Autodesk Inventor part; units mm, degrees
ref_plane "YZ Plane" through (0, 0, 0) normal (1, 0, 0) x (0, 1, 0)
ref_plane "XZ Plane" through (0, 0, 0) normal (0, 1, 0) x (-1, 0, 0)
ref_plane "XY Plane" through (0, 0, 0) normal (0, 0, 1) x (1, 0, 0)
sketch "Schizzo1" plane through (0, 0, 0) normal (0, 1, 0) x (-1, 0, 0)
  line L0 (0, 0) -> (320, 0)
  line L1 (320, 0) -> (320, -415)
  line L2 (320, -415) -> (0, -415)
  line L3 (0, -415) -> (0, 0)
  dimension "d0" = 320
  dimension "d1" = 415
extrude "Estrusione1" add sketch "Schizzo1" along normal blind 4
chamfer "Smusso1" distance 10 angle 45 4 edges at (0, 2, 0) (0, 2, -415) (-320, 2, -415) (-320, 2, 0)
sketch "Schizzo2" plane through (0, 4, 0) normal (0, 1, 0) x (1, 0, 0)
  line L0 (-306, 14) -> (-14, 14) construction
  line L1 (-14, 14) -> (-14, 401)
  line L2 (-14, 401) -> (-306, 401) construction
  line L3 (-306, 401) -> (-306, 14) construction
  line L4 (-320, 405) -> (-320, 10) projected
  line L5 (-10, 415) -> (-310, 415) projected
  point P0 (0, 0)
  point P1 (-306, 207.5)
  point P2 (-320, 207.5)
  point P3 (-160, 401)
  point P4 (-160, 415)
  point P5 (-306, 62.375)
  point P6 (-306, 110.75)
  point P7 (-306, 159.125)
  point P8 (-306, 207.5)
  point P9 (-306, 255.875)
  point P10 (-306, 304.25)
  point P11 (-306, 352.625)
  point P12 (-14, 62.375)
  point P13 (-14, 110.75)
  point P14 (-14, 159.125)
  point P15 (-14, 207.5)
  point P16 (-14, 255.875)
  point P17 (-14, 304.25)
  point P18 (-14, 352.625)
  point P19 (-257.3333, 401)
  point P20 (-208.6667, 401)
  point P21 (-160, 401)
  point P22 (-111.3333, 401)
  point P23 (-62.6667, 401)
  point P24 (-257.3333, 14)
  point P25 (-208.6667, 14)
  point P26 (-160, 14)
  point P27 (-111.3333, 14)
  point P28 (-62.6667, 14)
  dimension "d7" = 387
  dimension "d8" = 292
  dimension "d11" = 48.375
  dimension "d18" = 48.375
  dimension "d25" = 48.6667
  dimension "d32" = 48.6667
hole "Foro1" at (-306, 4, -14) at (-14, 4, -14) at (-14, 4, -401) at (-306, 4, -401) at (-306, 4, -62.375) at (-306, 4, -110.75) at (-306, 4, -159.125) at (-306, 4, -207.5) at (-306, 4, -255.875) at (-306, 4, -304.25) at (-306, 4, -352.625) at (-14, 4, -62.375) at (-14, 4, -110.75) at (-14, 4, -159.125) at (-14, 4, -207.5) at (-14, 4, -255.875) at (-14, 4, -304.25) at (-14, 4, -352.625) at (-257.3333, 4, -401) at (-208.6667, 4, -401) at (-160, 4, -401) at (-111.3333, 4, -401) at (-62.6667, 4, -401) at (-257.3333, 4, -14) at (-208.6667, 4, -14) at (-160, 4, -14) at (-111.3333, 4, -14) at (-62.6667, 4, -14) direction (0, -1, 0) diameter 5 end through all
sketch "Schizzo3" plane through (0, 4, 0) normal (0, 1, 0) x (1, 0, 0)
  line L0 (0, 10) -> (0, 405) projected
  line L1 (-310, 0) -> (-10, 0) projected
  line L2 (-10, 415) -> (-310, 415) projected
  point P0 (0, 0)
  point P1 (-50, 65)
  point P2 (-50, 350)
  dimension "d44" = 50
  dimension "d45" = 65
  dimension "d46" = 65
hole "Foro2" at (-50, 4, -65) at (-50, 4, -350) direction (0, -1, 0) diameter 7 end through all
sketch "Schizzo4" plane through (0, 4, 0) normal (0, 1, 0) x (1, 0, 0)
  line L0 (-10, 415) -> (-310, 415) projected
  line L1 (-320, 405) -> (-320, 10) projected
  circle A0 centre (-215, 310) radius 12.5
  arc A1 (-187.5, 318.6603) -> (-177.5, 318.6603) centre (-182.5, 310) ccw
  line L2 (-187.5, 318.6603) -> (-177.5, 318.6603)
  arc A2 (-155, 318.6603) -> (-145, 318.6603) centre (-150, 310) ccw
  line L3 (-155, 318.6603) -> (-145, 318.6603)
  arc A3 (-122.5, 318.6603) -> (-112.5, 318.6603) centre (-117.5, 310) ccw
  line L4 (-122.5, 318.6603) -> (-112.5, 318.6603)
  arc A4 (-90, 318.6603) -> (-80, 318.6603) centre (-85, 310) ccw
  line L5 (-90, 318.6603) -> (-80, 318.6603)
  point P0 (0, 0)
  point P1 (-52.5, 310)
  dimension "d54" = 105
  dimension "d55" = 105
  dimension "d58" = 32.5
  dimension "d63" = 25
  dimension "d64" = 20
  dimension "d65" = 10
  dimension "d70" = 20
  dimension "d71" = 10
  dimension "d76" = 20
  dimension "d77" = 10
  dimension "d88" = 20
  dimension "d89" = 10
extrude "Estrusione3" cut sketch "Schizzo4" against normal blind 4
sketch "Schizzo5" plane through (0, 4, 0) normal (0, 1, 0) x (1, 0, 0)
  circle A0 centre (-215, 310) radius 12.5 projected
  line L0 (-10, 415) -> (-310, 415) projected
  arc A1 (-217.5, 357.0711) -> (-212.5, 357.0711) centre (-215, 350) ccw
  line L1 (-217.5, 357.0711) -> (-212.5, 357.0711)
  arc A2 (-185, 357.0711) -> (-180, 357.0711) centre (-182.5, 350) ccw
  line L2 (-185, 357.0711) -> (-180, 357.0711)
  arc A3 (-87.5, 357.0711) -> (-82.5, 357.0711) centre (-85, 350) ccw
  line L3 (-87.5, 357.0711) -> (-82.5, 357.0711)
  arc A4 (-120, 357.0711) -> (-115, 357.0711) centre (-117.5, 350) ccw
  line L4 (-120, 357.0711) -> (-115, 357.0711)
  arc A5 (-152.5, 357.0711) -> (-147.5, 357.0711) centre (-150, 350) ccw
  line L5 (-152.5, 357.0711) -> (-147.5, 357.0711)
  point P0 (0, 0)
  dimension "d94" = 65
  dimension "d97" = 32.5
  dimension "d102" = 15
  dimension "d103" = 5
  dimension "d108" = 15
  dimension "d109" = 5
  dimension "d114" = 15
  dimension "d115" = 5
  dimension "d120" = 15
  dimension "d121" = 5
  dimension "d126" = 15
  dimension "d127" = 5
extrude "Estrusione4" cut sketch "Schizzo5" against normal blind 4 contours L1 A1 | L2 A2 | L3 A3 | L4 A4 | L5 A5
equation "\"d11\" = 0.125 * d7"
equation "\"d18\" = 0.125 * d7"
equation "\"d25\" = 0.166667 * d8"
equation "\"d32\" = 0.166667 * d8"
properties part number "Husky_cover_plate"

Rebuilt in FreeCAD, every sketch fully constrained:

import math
import FreeCAD as App
import Part
import Sketcher
from FreeCAD import Vector


def edges_at(feature, points):
    """Names of the edges that pass closest to the given points."""
    edges = feature.Shape.Edges
    near = lambda p: min(range(len(edges)), key=lambda i: edges[i].distToShape(Part.Vertex(*p))[0])
    return sorted({f"Edge{near(p) + 1}" for p in points})

doc = App.newDocument("Part")
params = doc.addObject("Spreadsheet::Sheet", "Params")
for row, (alias, value) in enumerate([
    ("sketch1_width", "320 mm"),
    ("sketch1_height", "415 mm"),
    ("pad1_length", "4 mm"),
    ("chamfer_size", "10 mm"),
    ("sketch2_diameter", "5 mm"),
    ("hole_diameter", "5 mm"),
    ("sketch3_diameter", "7 mm"),
    ("hole2_diameter", "7 mm"),
    ("sketch4_diameter", "25 mm"),
    ("sketch4_radius", "10 mm"),
    ("sketch4_width", "10 mm"),
    ("pocket1_length", "4 mm"),
    ("sketch5_radius", "7.5 mm"),
    ("sketch5_width", "5 mm"),
    ("pocket2_length", "4 mm"),
], start=1):
    params.set(f"A{row}", alias)
    params.set(f"B{row}", "=" + value)
    params.setAlias(f"B{row}", alias)

body = doc.addObject("PartDesign::Body", "Body")

sketch1 = body.newObject("Sketcher::SketchObject", "Sketch")
sketch1.AttachmentSupport = (doc.getObject("XZ_Plane"), [""])
sketch1.MapMode = "FlatFace"
sketch1.addGeometry(Part.LineSegment(Vector(-320, 0, 0), Vector(0, 0, 0)), False)
sketch1.addGeometry(Part.LineSegment(Vector(0, 0, 0), Vector(0, -415, 0)), False)
sketch1.addGeometry(Part.LineSegment(Vector(0, -415, 0), Vector(-320, -415, 0)), False)
sketch1.addGeometry(Part.LineSegment(Vector(-320, -415, 0), Vector(-320, 0, 0)), False)
sketch1.addConstraint(Sketcher.Constraint("Coincident", 0, 2, 1, 1))
sketch1.addConstraint(Sketcher.Constraint("Coincident", 1, 2, 2, 1))
sketch1.addConstraint(Sketcher.Constraint("Coincident", 2, 2, 3, 1))
sketch1.addConstraint(Sketcher.Constraint("Coincident", 3, 2, 0, 1))
sketch1.addConstraint(Sketcher.Constraint("Horizontal", 0))
sketch1.addConstraint(Sketcher.Constraint("Vertical", 1))
sketch1.addConstraint(Sketcher.Constraint("Horizontal", 2))
sketch1.addConstraint(Sketcher.Constraint("Vertical", 3))
sketch1.addConstraint(Sketcher.Constraint("Coincident", 0, 2, -1, 1))
sketch1.addConstraint(Sketcher.Constraint("DistanceX", 0, 1, 0, 2, 320.0))
sketch1.addConstraint(Sketcher.Constraint("DistanceY", 1, 2, 1, 1, 415.0))
sketch1.setExpression("Constraints[9]", "Params.sketch1_width")
sketch1.setExpression("Constraints[10]", "Params.sketch1_height")
pad1 = body.newObject("PartDesign::Pad", "Pad")
pad1.Profile = sketch1
pad1.setExpression("Length", "Params.pad1_length")
pad1.Reversed = True
doc.recompute()

chamfer = body.newObject("PartDesign::Chamfer", "Chamfer")
chamfer.Base = (pad1, edges_at(pad1, [
    (0, 2, 0),
    (0, 2, -415),
    (-320, 2, -415),
    (-320, 2, 0),
]))
chamfer.setExpression("Size", "Params.chamfer_size")

sketch2 = body.newObject("Sketcher::SketchObject", "Sketch001")
sketch2.AttachmentSupport = (doc.getObject("XZ_Plane"), [""])
sketch2.MapMode = "FlatFace"
sketch2.AttachmentOffset = App.Placement(Vector(0, 0, -4), App.Rotation())
sketch2.addGeometry(Part.Circle(Vector(-306, -14, 0), Vector(0, 0, 1), 2.5), False)
sketch2.addGeometry(Part.Circle(Vector(-14, -14, 0), Vector(0, 0, 1), 2.5), False)
sketch2.addGeometry(Part.Circle(Vector(-14, -401, 0), Vector(0, 0, 1), 2.5), False)
sketch2.addGeometry(Part.Circle(Vector(-306, -401, 0), Vector(0, 0, 1), 2.5), False)
sketch2.addGeometry(Part.Circle(Vector(-306, -62.4, 0), Vector(0, 0, 1), 2.5), False)
sketch2.addGeometry(Part.Circle(Vector(-306, -110.8, 0), Vector(0, 0, 1), 2.5), False)
sketch2.addGeometry(Part.Circle(Vector(-306, -159.1, 0), Vector(0, 0, 1), 2.5), False)
sketch2.addGeometry(Part.Circle(Vector(-306, -207.5, 0), Vector(0, 0, 1), 2.5), False)
sketch2.addGeometry(Part.Circle(Vector(-306, -255.9, 0), Vector(0, 0, 1), 2.5), False)
sketch2.addGeometry(Part.Circle(Vector(-306, -304.2, 0), Vector(0, 0, 1), 2.5), False)
sketch2.addGeometry(Part.Circle(Vector(-306, -352.6, 0), Vector(0, 0, 1), 2.5), False)
sketch2.addGeometry(Part.Circle(Vector(-14, -62.4, 0), Vector(0, 0, 1), 2.5), False)
sketch2.addGeometry(Part.Circle(Vector(-14, -110.8, 0), Vector(0, 0, 1), 2.5), False)
sketch2.addGeometry(Part.Circle(Vector(-14, -159.1, 0), Vector(0, 0, 1), 2.5), False)
sketch2.addGeometry(Part.Circle(Vector(-14, -207.5, 0), Vector(0, 0, 1), 2.5), False)
sketch2.addGeometry(Part.Circle(Vector(-14, -255.9, 0), Vector(0, 0, 1), 2.5), False)
sketch2.addGeometry(Part.Circle(Vector(-14, -304.2, 0), Vector(0, 0, 1), 2.5), False)
sketch2.addGeometry(Part.Circle(Vector(-14, -352.6, 0), Vector(0, 0, 1), 2.5), False)
sketch2.addGeometry(Part.Circle(Vector(-257.3, -401, 0), Vector(0, 0, 1), 2.5), False)
sketch2.addGeometry(Part.Circle(Vector(-208.7, -401, 0), Vector(0, 0, 1), 2.5), False)
sketch2.addGeometry(Part.Circle(Vector(-160, -401, 0), Vector(0, 0, 1), 2.5), False)
sketch2.addGeometry(Part.Circle(Vector(-111.3, -401, 0), Vector(0, 0, 1), 2.5), False)
sketch2.addGeometry(Part.Circle(Vector(-62.7, -401, 0), Vector(0, 0, 1), 2.5), False)
sketch2.addGeometry(Part.Circle(Vector(-257.3, -14, 0), Vector(0, 0, 1), 2.5), False)
sketch2.addGeometry(Part.Circle(Vector(-208.7, -14, 0), Vector(0, 0, 1), 2.5), False)
sketch2.addGeometry(Part.Circle(Vector(-160, -14, 0), Vector(0, 0, 1), 2.5), False)
sketch2.addGeometry(Part.Circle(Vector(-111.3, -14, 0), Vector(0, 0, 1), 2.5), False)
sketch2.addGeometry(Part.Circle(Vector(-62.7, -14, 0), Vector(0, 0, 1), 2.5), False)
sketch2.addConstraint(Sketcher.Constraint("Equal", 0, 1))
sketch2.addConstraint(Sketcher.Constraint("Equal", 1, 2))
sketch2.addConstraint(Sketcher.Constraint("Equal", 2, 3))
sketch2.addConstraint(Sketcher.Constraint("Equal", 3, 4))
sketch2.addConstraint(Sketcher.Constraint("Equal", 4, 5))
sketch2.addConstraint(Sketcher.Constraint("Equal", 5, 6))
sketch2.addConstraint(Sketcher.Constraint("Equal", 6, 7))
sketch2.addConstraint(Sketcher.Constraint("Equal", 7, 8))
sketch2.addConstraint(Sketcher.Constraint("Equal", 8, 9))
sketch2.addConstraint(Sketcher.Constraint("Equal", 9, 10))
sketch2.addConstraint(Sketcher.Constraint("Equal", 10, 11))
sketch2.addConstraint(Sketcher.Constraint("Equal", 11, 12))
sketch2.addConstraint(Sketcher.Constraint("Equal", 12, 13))
sketch2.addConstraint(Sketcher.Constraint("Equal", 13, 14))
sketch2.addConstraint(Sketcher.Constraint("Equal", 14, 15))
sketch2.addConstraint(Sketcher.Constraint("Equal", 15, 16))
sketch2.addConstraint(Sketcher.Constraint("Equal", 16, 17))
sketch2.addConstraint(Sketcher.Constraint("Equal", 17, 18))
sketch2.addConstraint(Sketcher.Constraint("Equal", 18, 19))
sketch2.addConstraint(Sketcher.Constraint("Equal", 19, 20))
sketch2.addConstraint(Sketcher.Constraint("Equal", 20, 21))
sketch2.addConstraint(Sketcher.Constraint("Equal", 21, 22))
sketch2.addConstraint(Sketcher.Constraint("Equal", 22, 23))
sketch2.addConstraint(Sketcher.Constraint("Equal", 23, 24))
sketch2.addConstraint(Sketcher.Constraint("Equal", 24, 25))
sketch2.addConstraint(Sketcher.Constraint("Equal", 25, 26))
sketch2.addConstraint(Sketcher.Constraint("Equal", 26, 27))
sketch2.addConstraint(Sketcher.Constraint("Horizontal", 0, 3, 1, 3))
sketch2.addConstraint(Sketcher.Constraint("Horizontal", 2, 3, 3, 3))
sketch2.addConstraint(Sketcher.Constraint("Horizontal", 4, 3, 11, 3))
sketch2.addConstraint(Sketcher.Constraint("Horizontal", 5, 3, 12, 3))
sketch2.addConstraint(Sketcher.Constraint("Horizontal", 6, 3, 13, 3))
sketch2.addConstraint(Sketcher.Constraint("Horizontal", 7, 3, 14, 3))
sketch2.addConstraint(Sketcher.Constraint("Horizontal", 8, 3, 15, 3))
sketch2.addConstraint(Sketcher.Constraint("Horizontal", 9, 3, 16, 3))
sketch2.addConstraint(Sketcher.Constraint("Horizontal", 10, 3, 17, 3))
sketch2.addConstraint(Sketcher.Constraint("Horizontal", 3, 3, 18, 3))
sketch2.addConstraint(Sketcher.Constraint("Horizontal", 18, 3, 19, 3))
sketch2.addConstraint(Sketcher.Constraint("Horizontal", 19, 3, 20, 3))
sketch2.addConstraint(Sketcher.Constraint("Horizontal", 20, 3, 21, 3))
sketch2.addConstraint(Sketcher.Constraint("Horizontal", 21, 3, 22, 3))
sketch2.addConstraint(Sketcher.Constraint("Horizontal", 1, 3, 23, 3))
sketch2.addConstraint(Sketcher.Constraint("Horizontal", 23, 3, 24, 3))
sketch2.addConstraint(Sketcher.Constraint("Horizontal", 24, 3, 25, 3))
sketch2.addConstraint(Sketcher.Constraint("Horizontal", 25, 3, 26, 3))
sketch2.addConstraint(Sketcher.Constraint("Horizontal", 26, 3, 27, 3))
sketch2.addConstraint(Sketcher.Constraint("Vertical", 1, 3, 2, 3))
sketch2.addConstraint(Sketcher.Constraint("Vertical", 0, 3, 3, 3))
sketch2.addConstraint(Sketcher.Constraint("Vertical", 3, 3, 4, 3))
sketch2.addConstraint(Sketcher.Constraint("Vertical", 4, 3, 5, 3))
sketch2.addConstraint(Sketcher.Constraint("Vertical", 5, 3, 6, 3))
sketch2.addConstraint(Sketcher.Constraint("Vertical", 6, 3, 7, 3))
sketch2.addConstraint(Sketcher.Constraint("Vertical", 7, 3, 8, 3))
sketch2.addConstraint(Sketcher.Constraint("Vertical", 8, 3, 9, 3))
sketch2.addConstraint(Sketcher.Constraint("Vertical", 9, 3, 10, 3))
sketch2.addConstraint(Sketcher.Constraint("Vertical", 2, 3, 11, 3))
sketch2.addConstraint(Sketcher.Constraint("Vertical", 11, 3, 12, 3))
sketch2.addConstraint(Sketcher.Constraint("Vertical", 12, 3, 13, 3))
sketch2.addConstraint(Sketcher.Constraint("Vertical", 13, 3, 14, 3))
sketch2.addConstraint(Sketcher.Constraint("Vertical", 14, 3, 15, 3))
sketch2.addConstraint(Sketcher.Constraint("Vertical", 15, 3, 16, 3))
sketch2.addConstraint(Sketcher.Constraint("Vertical", 16, 3, 17, 3))
sketch2.addConstraint(Sketcher.Constraint("Vertical", 18, 3, 23, 3))
sketch2.addConstraint(Sketcher.Constraint("Vertical", 19, 3, 24, 3))
sketch2.addConstraint(Sketcher.Constraint("Vertical", 20, 3, 25, 3))
sketch2.addConstraint(Sketcher.Constraint("Vertical", 21, 3, 26, 3))
sketch2.addConstraint(Sketcher.Constraint("Vertical", 22, 3, 27, 3))
sketch2.addConstraint(Sketcher.Constraint("Diameter", 0, 5.0))
sketch2.addConstraint(Sketcher.Constraint("DistanceX", 0, 3, -1, 1, 306.0))
sketch2.addConstraint(Sketcher.Constraint("DistanceY", 0, 3, -1, 1, 14.0))
sketch2.addConstraint(Sketcher.Constraint("DistanceX", 1, 3, -1, 1, 14.0))
sketch2.addConstraint(Sketcher.Constraint("DistanceY", 2, 3, -1, 1, 401.0))
sketch2.addConstraint(Sketcher.Constraint("DistanceX", 20, 3, -1, 1, 160.0))
sketch2.addConstraint(Sketcher.Constraint("DistanceY", 7, 3, -1, 1, 207.5))
sketch2.addConstraint(Sketcher.Constraint("DistanceY", 8, 3, 4, 3, 193.5))
sketch2.addConstraint(Sketcher.Constraint("DistanceY", 9, 3, 5, 3, 193.5))
sketch2.addConstraint(Sketcher.Constraint("DistanceY", 10, 3, 6, 3, 193.5))
sketch2.addConstraint(Sketcher.Constraint("DistanceY", 5, 3, -1, 1, 110.75))
sketch2.addConstraint(Sketcher.Constraint("DistanceY", 6, 3, 4, 3, 96.75))
sketch2.addConstraint(Sketcher.Constraint("DistanceY", 4, 3, -1, 1, 62.375))
sketch2.addConstraint(Sketcher.Constraint("DistanceX", 18, 3, -1, 1, 257.3333))
sketch2.addConstraint(Sketcher.Constraint("DistanceX", 19, 3, -1, 1, 208.6667))
sketch2.addConstraint(Sketcher.Constraint("DistanceX", 21, 3, -1, 1, 111.3333))
sketch2.addConstraint(Sketcher.Constraint("DistanceX", 22, 3, -1, 1, 62.6667))
sketch2.setExpression("Constraints[67]", "Params.sketch2_diameter")
doc.recompute()
hole = body.newObject("PartDesign::Hole", "Hole")
hole.Profile = sketch2
hole.ThreadType = "None"
hole.setExpression("Diameter", "Params.hole_diameter")
hole.DepthType = "ThroughAll"
hole.Reversed = True

sketch3 = body.newObject("Sketcher::SketchObject", "Sketch002")
sketch3.AttachmentSupport = (doc.getObject("XZ_Plane"), [""])
sketch3.MapMode = "FlatFace"
sketch3.AttachmentOffset = App.Placement(Vector(0, 0, -4), App.Rotation())
sketch3.addGeometry(Part.Circle(Vector(-50, -65, 0), Vector(0, 0, 1), 3.5), False)
sketch3.addGeometry(Part.Circle(Vector(-50, -350, 0), Vector(0, 0, 1), 3.5), False)
sketch3.addConstraint(Sketcher.Constraint("Equal", 0, 1))
sketch3.addConstraint(Sketcher.Constraint("Vertical", 0, 3, 1, 3))
sketch3.addConstraint(Sketcher.Constraint("Diameter", 0, 7.0))
sketch3.addConstraint(Sketcher.Constraint("DistanceX", 0, 3, -1, 1, 50.0))
sketch3.addConstraint(Sketcher.Constraint("DistanceY", 0, 3, -1, 1, 65.0))
sketch3.addConstraint(Sketcher.Constraint("DistanceY", 1, 3, -1, 1, 350.0))
sketch3.setExpression("Constraints[2]", "Params.sketch3_diameter")
doc.recompute()
hole2 = body.newObject("PartDesign::Hole", "Hole001")
hole2.Profile = sketch3
hole2.ThreadType = "None"
hole2.setExpression("Diameter", "Params.hole2_diameter")
hole2.DepthType = "ThroughAll"
hole2.Reversed = True

sketch4 = body.newObject("Sketcher::SketchObject", "Sketch003")
sketch4.AttachmentSupport = (doc.getObject("XZ_Plane"), [""])
sketch4.MapMode = "FlatFace"
sketch4.AttachmentOffset = App.Placement(Vector(0, 0, -4), App.Rotation())
sketch4.addGeometry(Part.Circle(Vector(-215, -310, 0), Vector(0, 0, 1), 12), False)
sketch4.addGeometry(Part.LineSegment(Vector(-178, -319, 0), Vector(-188, -319, 0)), False)
sketch4.addGeometry(Part.ArcOfCircle(Part.Circle(Vector(-182, -310, 0), Vector(0, 0, 1), 10), math.radians(-60), math.radians(240)), False)
sketch4.addGeometry(Part.LineSegment(Vector(-145, -319, 0), Vector(-155, -319, 0)), False)
sketch4.addGeometry(Part.ArcOfCircle(Part.Circle(Vector(-150, -310, 0), Vector(0, 0, 1), 10), math.radians(-60), math.radians(240)), False)
sketch4.addGeometry(Part.LineSegment(Vector(-112, -319, 0), Vector(-122, -319, 0)), False)
sketch4.addGeometry(Part.ArcOfCircle(Part.Circle(Vector(-118, -310, 0), Vector(0, 0, 1), 10), math.radians(-60), math.radians(240)), False)
sketch4.addGeometry(Part.LineSegment(Vector(-80, -319, 0), Vector(-90, -319, 0)), False)
sketch4.addGeometry(Part.ArcOfCircle(Part.Circle(Vector(-85, -310, 0), Vector(0, 0, 1), 10), math.radians(-60), math.radians(240)), False)
sketch4.addConstraint(Sketcher.Constraint("Coincident", 1, 1, 2, 1))
sketch4.addConstraint(Sketcher.Constraint("Coincident", 2, 2, 1, 2))
sketch4.addConstraint(Sketcher.Constraint("Coincident", 3, 1, 4, 1))
sketch4.addConstraint(Sketcher.Constraint("Coincident", 4, 2, 3, 2))
sketch4.addConstraint(Sketcher.Constraint("Coincident", 5, 1, 6, 1))
sketch4.addConstraint(Sketcher.Constraint("Coincident", 6, 2, 5, 2))
sketch4.addConstraint(Sketcher.Constraint("Coincident", 7, 1, 8, 1))
sketch4.addConstraint(Sketcher.Constraint("Coincident", 8, 2, 7, 2))
sketch4.addConstraint(Sketcher.Constraint("Horizontal", 1))
sketch4.addConstraint(Sketcher.Constraint("Horizontal", 3))
sketch4.addConstraint(Sketcher.Constraint("Horizontal", 5))
sketch4.addConstraint(Sketcher.Constraint("Horizontal", 7))
sketch4.addConstraint(Sketcher.Constraint("Equal", 2, 4))
sketch4.addConstraint(Sketcher.Constraint("Equal", 4, 6))
sketch4.addConstraint(Sketcher.Constraint("Equal", 6, 8))
sketch4.addConstraint(Sketcher.Constraint("Horizontal", 0, 3, 2, 3))
sketch4.addConstraint(Sketcher.Constraint("Horizontal", 2, 3, 4, 3))
sketch4.addConstraint(Sketcher.Constraint("Horizontal", 4, 3, 6, 3))
sketch4.addConstraint(Sketcher.Constraint("Horizontal", 6, 3, 8, 3))
sketch4.addConstraint(Sketcher.Constraint("Horizontal", 2, 2, 3, 1))
sketch4.addConstraint(Sketcher.Constraint("Horizontal", 4, 2, 5, 1))
sketch4.addConstraint(Sketcher.Constraint("Horizontal", 6, 2, 7, 1))
sketch4.addConstraint(Sketcher.Constraint("Diameter", 0, 25.0))
sketch4.addConstraint(Sketcher.Constraint("Radius", 2, 10.0))
sketch4.addConstraint(Sketcher.Constraint("DistanceX", 1, 2, 1, 1, 10.0))
sketch4.addConstraint(Sketcher.Constraint("DistanceX", 0, 3, 2, 3, 32.5))
sketch4.addConstraint(Sketcher.Constraint("DistanceX", 2, 3, 4, 3, 32.5))
sketch4.addConstraint(Sketcher.Constraint("DistanceX", 4, 3, 6, 3, 32.5))
sketch4.addConstraint(Sketcher.Constraint("DistanceX", 6, 3, 8, 3, 32.5))
sketch4.addConstraint(Sketcher.Constraint("DistanceX", 0, 3, -1, 1, 215.0))
sketch4.addConstraint(Sketcher.Constraint("DistanceY", 0, 3, -1, 1, 310.0))
sketch4.setExpression("Constraints[22]", "Params.sketch4_diameter")
sketch4.setExpression("Constraints[23]", "Params.sketch4_radius")
sketch4.setExpression("Constraints[24]", "Params.sketch4_width")
pocket1 = body.newObject("PartDesign::Pocket", "Pocket")
pocket1.Profile = sketch4
pocket1.setExpression("Length", "Params.pocket1_length")
pocket1.Reversed = True

sketch5 = body.newObject("Sketcher::SketchObject", "Sketch004")
sketch5.AttachmentSupport = (doc.getObject("XZ_Plane"), [""])
sketch5.MapMode = "FlatFace"
sketch5.AttachmentOffset = App.Placement(Vector(0, 0, -4), App.Rotation())
sketch5.addGeometry(Part.LineSegment(Vector(-212, -357, 0), Vector(-218, -357, 0)), False)
sketch5.addGeometry(Part.ArcOfCircle(Part.Circle(Vector(-215, -350, 0), Vector(0, 0, 1), 8), math.radians(-71), math.radians(251)), False)
sketch5.addGeometry(Part.LineSegment(Vector(-180, -357, 0), Vector(-185, -357, 0)), False)
sketch5.addGeometry(Part.ArcOfCircle(Part.Circle(Vector(-182, -350, 0), Vector(0, 0, 1), 8), math.radians(-71), math.radians(251)), False)
sketch5.addGeometry(Part.LineSegment(Vector(-82, -357, 0), Vector(-88, -357, 0)), False)
sketch5.addGeometry(Part.ArcOfCircle(Part.Circle(Vector(-85, -350, 0), Vector(0, 0, 1), 8), math.radians(-71), math.radians(251)), False)
sketch5.addGeometry(Part.LineSegment(Vector(-115, -357, 0), Vector(-120, -357, 0)), False)
sketch5.addGeometry(Part.ArcOfCircle(Part.Circle(Vector(-118, -350, 0), Vector(0, 0, 1), 8), math.radians(-71), math.radians(251)), False)
sketch5.addGeometry(Part.LineSegment(Vector(-148, -357, 0), Vector(-152, -357, 0)), False)
sketch5.addGeometry(Part.ArcOfCircle(Part.Circle(Vector(-150, -350, 0), Vector(0, 0, 1), 8), math.radians(-71), math.radians(251)), False)
sketch5.addConstraint(Sketcher.Constraint("Coincident", 0, 1, 1, 1))
sketch5.addConstraint(Sketcher.Constraint("Coincident", 1, 2, 0, 2))
sketch5.addConstraint(Sketcher.Constraint("Coincident", 2, 1, 3, 1))
sketch5.addConstraint(Sketcher.Constraint("Coincident", 3, 2, 2, 2))
sketch5.addConstraint(Sketcher.Constraint("Coincident", 4, 1, 5, 1))
sketch5.addConstraint(Sketcher.Constraint("Coincident", 5, 2, 4, 2))
sketch5.addConstraint(Sketcher.Constraint("Coincident", 6, 1, 7, 1))
sketch5.addConstraint(Sketcher.Constraint("Coincident", 7, 2, 6, 2))
sketch5.addConstraint(Sketcher.Constraint("Coincident", 8, 1, 9, 1))
sketch5.addConstraint(Sketcher.Constraint("Coincident", 9, 2, 8, 2))
sketch5.addConstraint(Sketcher.Constraint("Horizontal", 0))
sketch5.addConstraint(Sketcher.Constraint("Horizontal", 2))
sketch5.addConstraint(Sketcher.Constraint("Horizontal", 4))
sketch5.addConstraint(Sketcher.Constraint("Horizontal", 6))
sketch5.addConstraint(Sketcher.Constraint("Horizontal", 8))
sketch5.addConstraint(Sketcher.Constraint("Equal", 1, 3))
sketch5.addConstraint(Sketcher.Constraint("Equal", 3, 5))
sketch5.addConstraint(Sketcher.Constraint("Equal", 5, 7))
sketch5.addConstraint(Sketcher.Constraint("Equal", 7, 9))
sketch5.addConstraint(Sketcher.Constraint("Horizontal", 1, 3, 3, 3))
sketch5.addConstraint(Sketcher.Constraint("Horizontal", 3, 3, 5, 3))
sketch5.addConstraint(Sketcher.Constraint("Horizontal", 5, 3, 7, 3))
sketch5.addConstraint(Sketcher.Constraint("Horizontal", 7, 3, 9, 3))
sketch5.addConstraint(Sketcher.Constraint("Horizontal", 1, 2, 2, 1))
sketch5.addConstraint(Sketcher.Constraint("Horizontal", 3, 2, 4, 1))
sketch5.addConstraint(Sketcher.Constraint("Horizontal", 5, 2, 6, 1))
sketch5.addConstraint(Sketcher.Constraint("Horizontal", 7, 2, 8, 1))
sketch5.addConstraint(Sketcher.Constraint("Radius", 1, 7.5))
sketch5.addConstraint(Sketcher.Constraint("DistanceX", 0, 2, 0, 1, 5.0))
sketch5.addConstraint(Sketcher.Constraint("DistanceX", 3, 3, 7, 3, 65.0))
sketch5.addConstraint(Sketcher.Constraint("DistanceX", 1, 3, 9, 3, 65.0))
sketch5.addConstraint(Sketcher.Constraint("DistanceX", 9, 3, 5, 3, 65.0))
sketch5.addConstraint(Sketcher.Constraint("DistanceX", 1, 3, 3, 3, 32.5))
sketch5.addConstraint(Sketcher.Constraint("DistanceX", 1, 3, -1, 1, 215.0))
sketch5.addConstraint(Sketcher.Constraint("DistanceY", 1, 3, -1, 1, 350.0))
sketch5.setExpression("Constraints[27]", "Params.sketch5_radius")
sketch5.setExpression("Constraints[28]", "Params.sketch5_width")
pocket2 = body.newObject("PartDesign::Pocket", "Pocket001")
pocket2.Profile = sketch5
pocket2.setExpression("Length", "Params.pocket2_length")
pocket2.Reversed = True

doc.recompute()
